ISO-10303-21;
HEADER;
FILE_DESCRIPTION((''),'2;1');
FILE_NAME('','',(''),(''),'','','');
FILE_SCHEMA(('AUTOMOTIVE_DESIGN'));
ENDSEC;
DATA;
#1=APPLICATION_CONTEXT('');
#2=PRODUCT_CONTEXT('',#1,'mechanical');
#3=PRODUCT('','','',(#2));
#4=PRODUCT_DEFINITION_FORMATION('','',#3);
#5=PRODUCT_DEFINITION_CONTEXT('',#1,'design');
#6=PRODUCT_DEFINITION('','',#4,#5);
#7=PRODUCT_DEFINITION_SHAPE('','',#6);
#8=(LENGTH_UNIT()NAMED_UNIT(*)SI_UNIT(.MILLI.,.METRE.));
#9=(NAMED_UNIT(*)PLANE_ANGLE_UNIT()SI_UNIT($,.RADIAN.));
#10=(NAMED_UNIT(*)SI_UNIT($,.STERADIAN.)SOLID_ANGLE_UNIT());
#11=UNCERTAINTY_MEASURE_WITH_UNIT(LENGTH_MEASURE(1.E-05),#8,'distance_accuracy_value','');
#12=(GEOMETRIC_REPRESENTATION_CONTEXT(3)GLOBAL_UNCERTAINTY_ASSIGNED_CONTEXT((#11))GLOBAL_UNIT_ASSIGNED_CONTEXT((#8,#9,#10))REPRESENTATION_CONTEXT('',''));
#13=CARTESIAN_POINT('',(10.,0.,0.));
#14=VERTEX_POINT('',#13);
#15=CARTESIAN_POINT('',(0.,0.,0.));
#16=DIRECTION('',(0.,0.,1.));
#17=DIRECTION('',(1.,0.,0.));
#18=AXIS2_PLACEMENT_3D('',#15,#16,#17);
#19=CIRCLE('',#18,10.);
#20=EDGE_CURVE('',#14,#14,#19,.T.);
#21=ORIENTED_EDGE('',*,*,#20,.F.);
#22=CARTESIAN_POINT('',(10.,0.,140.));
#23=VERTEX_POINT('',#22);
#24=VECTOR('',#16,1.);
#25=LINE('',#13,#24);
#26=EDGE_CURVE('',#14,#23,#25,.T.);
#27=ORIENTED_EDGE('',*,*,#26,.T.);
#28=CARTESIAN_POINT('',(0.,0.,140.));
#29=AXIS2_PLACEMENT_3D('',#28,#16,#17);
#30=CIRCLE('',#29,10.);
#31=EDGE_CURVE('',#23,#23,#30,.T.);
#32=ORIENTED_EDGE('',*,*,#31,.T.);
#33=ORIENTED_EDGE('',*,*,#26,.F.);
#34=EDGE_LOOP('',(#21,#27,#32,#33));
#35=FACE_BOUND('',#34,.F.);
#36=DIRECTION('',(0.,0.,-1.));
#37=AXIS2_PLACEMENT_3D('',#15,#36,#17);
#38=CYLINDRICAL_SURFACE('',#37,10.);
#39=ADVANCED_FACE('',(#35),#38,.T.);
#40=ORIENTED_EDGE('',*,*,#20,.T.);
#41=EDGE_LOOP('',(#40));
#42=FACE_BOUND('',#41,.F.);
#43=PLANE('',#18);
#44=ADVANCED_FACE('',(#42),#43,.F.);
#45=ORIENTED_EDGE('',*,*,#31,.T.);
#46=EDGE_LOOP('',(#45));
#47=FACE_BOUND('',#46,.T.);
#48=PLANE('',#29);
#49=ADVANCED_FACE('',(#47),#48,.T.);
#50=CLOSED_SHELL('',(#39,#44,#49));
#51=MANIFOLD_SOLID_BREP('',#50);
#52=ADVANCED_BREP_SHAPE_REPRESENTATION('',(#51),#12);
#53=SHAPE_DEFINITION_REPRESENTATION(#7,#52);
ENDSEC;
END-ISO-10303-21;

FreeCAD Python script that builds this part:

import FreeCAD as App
import Part
import Sketcher
Q = App.Units.Quantity

doc = App.newDocument("Part")
body = doc.addObject("PartDesign::Body", "Body")

# Sketch on XY plane
sketch1 = body.newObject("Sketcher::SketchObject", "Sketch")
sketch1.AttachmentSupport = (doc.getObject("XY_Plane"), [""])
sketch1.MapMode = "FlatFace"
sketch1.addGeometry(Part.Circle(App.Vector(0, 0, 0), App.Vector(0, 0, 1), 10), False)
sketch1.addConstraint([
    Sketcher.Constraint("Coincident", 0, 3, -1, 1),
    Sketcher.Constraint("Diameter", 0, Q("20 mm")),
])
pad1 = body.newObject("PartDesign::Pad", "Pad")
pad1.Profile = sketch1
pad1.Length = 140

doc.recompute()
